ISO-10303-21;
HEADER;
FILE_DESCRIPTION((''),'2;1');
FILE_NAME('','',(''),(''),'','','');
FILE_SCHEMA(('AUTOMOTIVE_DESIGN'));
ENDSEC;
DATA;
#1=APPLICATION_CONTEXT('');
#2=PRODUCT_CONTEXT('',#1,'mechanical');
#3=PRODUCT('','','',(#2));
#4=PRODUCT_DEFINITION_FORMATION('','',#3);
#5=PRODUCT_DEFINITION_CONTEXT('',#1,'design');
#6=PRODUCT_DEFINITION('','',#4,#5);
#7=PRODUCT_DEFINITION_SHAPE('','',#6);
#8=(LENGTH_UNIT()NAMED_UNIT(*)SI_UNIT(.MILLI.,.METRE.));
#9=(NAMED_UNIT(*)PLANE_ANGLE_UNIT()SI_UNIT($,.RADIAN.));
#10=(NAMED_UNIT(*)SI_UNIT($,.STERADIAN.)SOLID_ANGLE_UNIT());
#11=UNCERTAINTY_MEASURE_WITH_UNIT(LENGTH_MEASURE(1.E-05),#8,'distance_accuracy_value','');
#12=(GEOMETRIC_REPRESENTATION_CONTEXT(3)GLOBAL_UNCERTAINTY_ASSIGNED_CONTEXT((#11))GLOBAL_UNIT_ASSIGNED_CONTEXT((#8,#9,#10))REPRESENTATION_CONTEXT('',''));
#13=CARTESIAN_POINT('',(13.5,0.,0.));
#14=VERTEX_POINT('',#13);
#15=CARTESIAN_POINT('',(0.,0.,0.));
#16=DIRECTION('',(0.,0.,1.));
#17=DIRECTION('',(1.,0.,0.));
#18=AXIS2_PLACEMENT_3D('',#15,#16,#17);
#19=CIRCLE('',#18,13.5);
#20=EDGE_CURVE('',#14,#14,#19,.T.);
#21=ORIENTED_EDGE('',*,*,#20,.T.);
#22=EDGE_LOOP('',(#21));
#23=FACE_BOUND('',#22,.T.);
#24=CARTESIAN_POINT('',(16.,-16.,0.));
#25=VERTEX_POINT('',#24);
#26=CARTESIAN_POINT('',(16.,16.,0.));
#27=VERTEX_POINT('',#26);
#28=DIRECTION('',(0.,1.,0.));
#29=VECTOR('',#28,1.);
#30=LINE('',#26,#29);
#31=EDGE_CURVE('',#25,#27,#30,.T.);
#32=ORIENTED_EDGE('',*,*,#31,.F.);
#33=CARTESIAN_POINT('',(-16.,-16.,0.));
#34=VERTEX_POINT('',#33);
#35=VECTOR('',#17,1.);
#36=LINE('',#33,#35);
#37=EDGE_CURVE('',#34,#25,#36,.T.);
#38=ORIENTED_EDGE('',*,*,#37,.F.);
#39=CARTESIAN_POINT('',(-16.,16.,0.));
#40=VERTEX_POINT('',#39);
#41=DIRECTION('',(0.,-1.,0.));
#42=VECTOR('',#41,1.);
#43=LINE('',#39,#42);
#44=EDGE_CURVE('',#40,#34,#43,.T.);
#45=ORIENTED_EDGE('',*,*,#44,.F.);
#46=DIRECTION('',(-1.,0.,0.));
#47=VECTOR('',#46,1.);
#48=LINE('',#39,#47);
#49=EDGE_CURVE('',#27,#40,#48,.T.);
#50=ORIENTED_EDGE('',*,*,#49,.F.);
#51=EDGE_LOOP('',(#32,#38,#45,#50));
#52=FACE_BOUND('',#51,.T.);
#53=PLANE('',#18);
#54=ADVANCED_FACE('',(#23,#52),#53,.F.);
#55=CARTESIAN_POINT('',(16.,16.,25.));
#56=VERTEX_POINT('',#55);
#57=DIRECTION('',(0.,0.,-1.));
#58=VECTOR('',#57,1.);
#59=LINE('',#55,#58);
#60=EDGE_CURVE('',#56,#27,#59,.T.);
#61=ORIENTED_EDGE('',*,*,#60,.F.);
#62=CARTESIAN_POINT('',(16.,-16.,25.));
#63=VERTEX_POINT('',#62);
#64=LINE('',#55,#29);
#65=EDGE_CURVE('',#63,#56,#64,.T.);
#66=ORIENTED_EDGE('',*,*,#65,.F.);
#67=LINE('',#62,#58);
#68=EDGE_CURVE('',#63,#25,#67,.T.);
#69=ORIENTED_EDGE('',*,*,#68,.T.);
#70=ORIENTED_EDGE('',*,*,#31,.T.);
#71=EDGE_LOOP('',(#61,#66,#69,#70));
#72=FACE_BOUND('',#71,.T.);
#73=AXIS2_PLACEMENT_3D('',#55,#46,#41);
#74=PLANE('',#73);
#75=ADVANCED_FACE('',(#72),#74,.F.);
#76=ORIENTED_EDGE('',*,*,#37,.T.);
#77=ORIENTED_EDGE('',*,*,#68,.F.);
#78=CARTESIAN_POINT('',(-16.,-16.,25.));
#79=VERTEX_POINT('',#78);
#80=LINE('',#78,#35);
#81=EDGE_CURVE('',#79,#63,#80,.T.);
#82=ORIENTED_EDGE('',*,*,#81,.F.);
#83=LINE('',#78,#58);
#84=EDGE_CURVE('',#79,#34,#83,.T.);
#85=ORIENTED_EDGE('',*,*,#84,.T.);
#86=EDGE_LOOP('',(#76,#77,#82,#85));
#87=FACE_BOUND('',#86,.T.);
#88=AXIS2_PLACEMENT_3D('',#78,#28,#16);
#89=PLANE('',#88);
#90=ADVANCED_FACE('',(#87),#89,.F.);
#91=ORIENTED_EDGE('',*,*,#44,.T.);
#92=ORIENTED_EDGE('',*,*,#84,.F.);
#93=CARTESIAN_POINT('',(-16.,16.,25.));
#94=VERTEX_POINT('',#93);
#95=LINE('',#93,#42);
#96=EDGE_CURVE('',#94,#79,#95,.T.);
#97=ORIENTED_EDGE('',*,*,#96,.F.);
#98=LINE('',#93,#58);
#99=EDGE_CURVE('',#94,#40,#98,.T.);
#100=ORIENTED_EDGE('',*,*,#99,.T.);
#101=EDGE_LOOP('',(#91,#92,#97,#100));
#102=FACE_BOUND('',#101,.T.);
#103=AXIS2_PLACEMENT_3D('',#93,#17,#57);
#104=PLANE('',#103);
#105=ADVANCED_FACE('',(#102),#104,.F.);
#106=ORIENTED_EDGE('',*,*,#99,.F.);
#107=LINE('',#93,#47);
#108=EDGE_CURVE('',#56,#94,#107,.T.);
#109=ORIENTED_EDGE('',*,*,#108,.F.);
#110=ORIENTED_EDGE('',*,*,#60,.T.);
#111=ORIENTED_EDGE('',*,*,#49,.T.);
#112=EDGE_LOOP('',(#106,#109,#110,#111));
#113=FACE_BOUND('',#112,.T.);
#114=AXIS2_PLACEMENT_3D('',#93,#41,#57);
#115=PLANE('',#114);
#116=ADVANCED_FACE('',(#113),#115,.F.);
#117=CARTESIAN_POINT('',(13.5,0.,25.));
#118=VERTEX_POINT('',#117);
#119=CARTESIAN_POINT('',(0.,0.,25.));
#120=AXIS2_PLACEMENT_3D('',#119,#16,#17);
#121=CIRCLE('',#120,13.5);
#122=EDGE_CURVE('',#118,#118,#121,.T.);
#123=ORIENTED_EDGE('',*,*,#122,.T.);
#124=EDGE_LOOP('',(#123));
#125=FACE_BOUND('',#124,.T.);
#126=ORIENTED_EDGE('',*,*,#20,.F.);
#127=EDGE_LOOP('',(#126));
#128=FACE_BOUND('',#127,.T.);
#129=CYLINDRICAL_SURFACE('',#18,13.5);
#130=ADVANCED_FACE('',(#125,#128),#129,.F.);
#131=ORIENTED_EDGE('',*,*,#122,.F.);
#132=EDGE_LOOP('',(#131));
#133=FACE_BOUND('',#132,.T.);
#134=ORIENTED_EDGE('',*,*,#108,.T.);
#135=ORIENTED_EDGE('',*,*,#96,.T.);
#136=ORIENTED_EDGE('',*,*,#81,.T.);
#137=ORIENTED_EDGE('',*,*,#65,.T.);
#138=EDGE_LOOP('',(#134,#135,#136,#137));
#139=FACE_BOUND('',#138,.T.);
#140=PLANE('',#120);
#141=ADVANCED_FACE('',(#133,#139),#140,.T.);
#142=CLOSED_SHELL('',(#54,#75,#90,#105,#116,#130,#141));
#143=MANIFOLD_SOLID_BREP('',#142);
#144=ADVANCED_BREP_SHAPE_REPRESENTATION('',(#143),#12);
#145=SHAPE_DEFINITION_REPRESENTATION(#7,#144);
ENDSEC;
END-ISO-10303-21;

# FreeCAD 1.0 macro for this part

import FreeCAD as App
import Part
import Sketcher

V = App.Vector

doc = App.newDocument("Part")
body = doc.addObject("PartDesign::Body", "Body")

# Sketch on XY plane
sketch1 = doc.addObject("Sketcher::SketchObject", "Sketch")
body.addObject(sketch1)
sketch1.AttachmentSupport = (doc.XY_Plane, [""])
sketch1.MapMode = "FlatFace"
sketch1.addGeometry([
    Part.LineSegment(V(-16, 16, 0), V(-16, -16, 0)),
    Part.LineSegment(V(-16, -16, 0), V(16, -16, 0)),
    Part.LineSegment(V(16, -16, 0), V(16, 16, 0)),
    Part.LineSegment(V(16, 16, 0), V(-16, 16, 0)),
], False)
sketch1.addConstraint([
    Sketcher.Constraint("Coincident", 0, 2, 1, 1),
    Sketcher.Constraint("Coincident", 1, 2, 2, 1),
    Sketcher.Constraint("Coincident", 2, 2, 3, 1),
    Sketcher.Constraint("Coincident", 3, 2, 0, 1),
    Sketcher.Constraint("Vertical", 0),
    Sketcher.Constraint("Horizontal", 1),
    Sketcher.Constraint("Vertical", 2),
    Sketcher.Constraint("Horizontal", 3),
    Sketcher.Constraint("Symmetric", 0, 2, 2, 2, -1, 1),
    Sketcher.Constraint("Equal", 3, 0),
    Sketcher.Constraint("DistanceX", 1, 1, 1, 2, 32.0),
])
pad1 = doc.addObject("PartDesign::Pad", "Pad")
body.addObject(pad1)
pad1.Profile = sketch1
pad1.Length = 25

# Sketch on XY plane
sketch2 = doc.addObject("Sketcher::SketchObject", "Sketch001")
body.addObject(sketch2)
sketch2.AttachmentSupport = (doc.XY_Plane, [""])
sketch2.MapMode = "FlatFace"
sketch2.AttachmentOffset = App.Placement(V(0, 0, 25), App.Rotation())
sketch2.addGeometry(Part.Circle(V(0, 0, 0), V(0, 0, 1), 14), False)
sketch2.addConstraint([
    Sketcher.Constraint("Coincident", 0, 3, -1, 1),
    Sketcher.Constraint("Diameter", 0, 27.0),
])
pocket1 = doc.addObject("PartDesign::Pocket", "Pocket")
body.addObject(pocket1)
pocket1.Profile = sketch2
pocket1.Type = "ThroughAll"

doc.recompute()
